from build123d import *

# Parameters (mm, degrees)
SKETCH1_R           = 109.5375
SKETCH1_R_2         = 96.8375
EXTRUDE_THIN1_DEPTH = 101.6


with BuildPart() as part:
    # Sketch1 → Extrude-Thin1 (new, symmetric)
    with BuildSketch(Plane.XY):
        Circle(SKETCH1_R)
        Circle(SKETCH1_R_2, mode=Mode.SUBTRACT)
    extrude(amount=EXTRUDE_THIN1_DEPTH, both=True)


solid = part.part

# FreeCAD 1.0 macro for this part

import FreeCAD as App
import Part
import Sketcher
from FreeCAD import Vector
Q = App.Units.Quantity

doc = App.newDocument("Part")
body = doc.addObject("PartDesign::Body", "Body")

sketch1 = doc.addObject("Sketcher::SketchObject", "Sketch")
body.addObject(sketch1)
sketch1.AttachmentSupport = (doc.XY_Plane, [""])
sketch1.MapMode = "FlatFace"
sketch1.addGeometry([
    Part.Circle(Vector(0, 0, 0), Vector(0, 0, 1), 110),
    Part.Circle(Vector(0, 0, 0), Vector(0, 0, 1), 97),
], False)
sketch1.addConstraint([
    Sketcher.Constraint("Coincident", 0, 3, -1, 1),
    Sketcher.Constraint("Coincident", 1, 3, -1, 1),
    Sketcher.Constraint("Diameter", 0, Q("8.625 in")),
    Sketcher.Constraint("Diameter", 1, Q("7.625 in")),
])
pad1 = doc.addObject("PartDesign::Pad", "Pad")
body.addObject(pad1)
pad1.Profile = sketch1
pad1.Length = Q("8 in")
pad1.Midplane = True

doc.recompute()
